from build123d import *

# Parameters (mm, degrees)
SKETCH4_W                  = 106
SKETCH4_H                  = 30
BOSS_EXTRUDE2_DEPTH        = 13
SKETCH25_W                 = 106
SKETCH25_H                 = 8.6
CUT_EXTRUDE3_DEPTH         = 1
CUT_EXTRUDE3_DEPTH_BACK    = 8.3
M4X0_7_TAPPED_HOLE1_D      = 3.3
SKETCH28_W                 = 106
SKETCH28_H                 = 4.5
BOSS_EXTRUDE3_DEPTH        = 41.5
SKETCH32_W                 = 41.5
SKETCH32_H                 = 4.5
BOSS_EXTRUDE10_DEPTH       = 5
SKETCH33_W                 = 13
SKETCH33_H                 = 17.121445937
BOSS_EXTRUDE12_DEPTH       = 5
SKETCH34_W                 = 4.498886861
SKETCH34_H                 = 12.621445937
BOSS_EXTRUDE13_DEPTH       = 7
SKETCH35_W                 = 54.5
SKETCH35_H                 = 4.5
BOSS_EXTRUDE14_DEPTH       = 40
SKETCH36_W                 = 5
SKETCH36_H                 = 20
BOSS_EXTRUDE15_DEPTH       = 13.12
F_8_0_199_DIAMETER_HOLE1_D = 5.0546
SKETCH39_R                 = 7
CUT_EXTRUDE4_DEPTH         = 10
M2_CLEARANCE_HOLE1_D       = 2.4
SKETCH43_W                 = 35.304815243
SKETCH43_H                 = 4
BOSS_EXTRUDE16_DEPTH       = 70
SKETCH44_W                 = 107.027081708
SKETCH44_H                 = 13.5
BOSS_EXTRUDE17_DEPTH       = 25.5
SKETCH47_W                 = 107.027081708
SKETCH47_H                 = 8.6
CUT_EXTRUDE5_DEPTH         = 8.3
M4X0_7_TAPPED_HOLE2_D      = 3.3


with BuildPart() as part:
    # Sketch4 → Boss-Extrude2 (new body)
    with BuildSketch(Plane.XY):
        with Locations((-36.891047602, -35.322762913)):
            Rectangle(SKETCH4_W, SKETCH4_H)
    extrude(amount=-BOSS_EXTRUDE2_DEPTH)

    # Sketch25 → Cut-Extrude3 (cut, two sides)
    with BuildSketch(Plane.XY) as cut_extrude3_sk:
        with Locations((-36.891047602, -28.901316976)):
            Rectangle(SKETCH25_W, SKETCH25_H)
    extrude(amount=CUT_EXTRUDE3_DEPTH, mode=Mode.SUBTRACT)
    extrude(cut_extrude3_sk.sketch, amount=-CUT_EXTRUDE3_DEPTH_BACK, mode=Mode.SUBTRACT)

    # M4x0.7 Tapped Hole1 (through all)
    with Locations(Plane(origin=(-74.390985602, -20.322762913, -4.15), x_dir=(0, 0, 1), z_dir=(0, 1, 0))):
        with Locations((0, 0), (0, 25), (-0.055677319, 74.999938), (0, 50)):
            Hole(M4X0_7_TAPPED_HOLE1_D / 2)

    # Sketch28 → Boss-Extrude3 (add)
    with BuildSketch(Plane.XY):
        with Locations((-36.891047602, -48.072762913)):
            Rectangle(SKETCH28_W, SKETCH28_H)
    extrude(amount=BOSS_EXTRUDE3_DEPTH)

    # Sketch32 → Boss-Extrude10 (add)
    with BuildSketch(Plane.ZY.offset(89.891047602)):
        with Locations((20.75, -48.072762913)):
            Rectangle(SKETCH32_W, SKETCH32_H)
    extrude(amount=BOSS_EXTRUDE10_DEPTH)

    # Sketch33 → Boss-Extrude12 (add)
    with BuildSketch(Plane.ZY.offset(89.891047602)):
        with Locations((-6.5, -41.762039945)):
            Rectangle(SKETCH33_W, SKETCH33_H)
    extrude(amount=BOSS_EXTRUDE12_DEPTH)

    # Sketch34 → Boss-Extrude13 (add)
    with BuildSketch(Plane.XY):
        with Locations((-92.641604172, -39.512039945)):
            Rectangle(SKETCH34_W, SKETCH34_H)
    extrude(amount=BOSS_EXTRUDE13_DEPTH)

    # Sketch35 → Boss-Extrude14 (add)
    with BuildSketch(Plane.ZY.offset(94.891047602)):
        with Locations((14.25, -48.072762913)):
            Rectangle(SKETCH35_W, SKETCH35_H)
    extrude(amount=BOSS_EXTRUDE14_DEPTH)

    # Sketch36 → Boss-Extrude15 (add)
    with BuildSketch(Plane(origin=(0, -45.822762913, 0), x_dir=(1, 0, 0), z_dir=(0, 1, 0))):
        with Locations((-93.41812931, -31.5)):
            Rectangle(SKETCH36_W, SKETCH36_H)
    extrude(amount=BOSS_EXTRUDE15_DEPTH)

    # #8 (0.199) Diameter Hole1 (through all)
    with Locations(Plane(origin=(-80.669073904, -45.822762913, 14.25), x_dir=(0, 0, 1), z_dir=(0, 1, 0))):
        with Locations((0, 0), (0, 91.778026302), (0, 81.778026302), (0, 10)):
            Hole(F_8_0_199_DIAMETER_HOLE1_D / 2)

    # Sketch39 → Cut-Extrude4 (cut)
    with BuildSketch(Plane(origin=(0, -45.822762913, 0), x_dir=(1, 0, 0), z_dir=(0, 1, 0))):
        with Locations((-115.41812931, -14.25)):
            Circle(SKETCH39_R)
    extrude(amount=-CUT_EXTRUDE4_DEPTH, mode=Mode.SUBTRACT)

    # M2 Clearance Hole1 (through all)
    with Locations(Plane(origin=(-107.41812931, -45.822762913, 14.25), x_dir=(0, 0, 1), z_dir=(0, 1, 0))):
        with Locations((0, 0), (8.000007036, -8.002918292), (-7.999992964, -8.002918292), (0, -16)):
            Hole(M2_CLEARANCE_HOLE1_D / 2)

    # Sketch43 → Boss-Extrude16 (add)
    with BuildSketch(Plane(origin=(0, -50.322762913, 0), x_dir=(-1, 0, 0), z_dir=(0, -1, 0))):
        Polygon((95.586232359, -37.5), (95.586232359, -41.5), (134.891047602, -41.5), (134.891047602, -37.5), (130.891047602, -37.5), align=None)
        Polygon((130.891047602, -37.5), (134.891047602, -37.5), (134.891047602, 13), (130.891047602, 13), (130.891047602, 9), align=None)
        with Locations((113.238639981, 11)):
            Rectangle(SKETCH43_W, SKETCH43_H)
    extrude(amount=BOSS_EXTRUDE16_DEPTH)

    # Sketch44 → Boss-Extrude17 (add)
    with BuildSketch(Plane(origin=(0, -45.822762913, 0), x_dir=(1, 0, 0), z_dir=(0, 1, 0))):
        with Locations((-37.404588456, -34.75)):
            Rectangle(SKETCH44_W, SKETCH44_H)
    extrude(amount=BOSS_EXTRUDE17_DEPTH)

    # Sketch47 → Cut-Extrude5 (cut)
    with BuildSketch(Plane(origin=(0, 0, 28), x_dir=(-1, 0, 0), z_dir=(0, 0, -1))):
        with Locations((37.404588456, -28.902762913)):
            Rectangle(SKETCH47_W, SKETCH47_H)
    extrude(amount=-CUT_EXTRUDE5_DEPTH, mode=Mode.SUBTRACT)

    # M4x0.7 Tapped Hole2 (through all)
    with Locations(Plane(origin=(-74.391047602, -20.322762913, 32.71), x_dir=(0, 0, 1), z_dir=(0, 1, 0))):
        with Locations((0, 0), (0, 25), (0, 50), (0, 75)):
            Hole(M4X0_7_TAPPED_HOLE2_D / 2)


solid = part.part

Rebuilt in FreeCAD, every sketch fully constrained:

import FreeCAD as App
import Part
import Sketcher

V = App.Vector


def add_polygon(sketch, points):
    """Adds a closed chain of lines whose ends are joined by coincident constraints."""
    first, n = sketch.GeometryCount, len(points)
    for a, b in zip(points, points[1:] + points[:1]):
        sketch.addGeometry(Part.LineSegment(App.Vector(*a, 0), App.Vector(*b, 0)), False)
    for i in range(n):
        sketch.addConstraint(Sketcher.Constraint("Coincident", first + i, 2, first + (i + 1) % n, 1))

doc = App.newDocument("Part")
body = doc.addObject("PartDesign::Body", "Body")

# Sketch on XY plane
sketch1 = body.newObject("Sketcher::SketchObject", "Sketch")
sketch1.AttachmentSupport = (doc.getObject("XY_Plane"), [""])
sketch1.MapMode = "FlatFace"
add_polygon(sketch1, [(-89.891048, -20.322763), (-89.891048, -50.322763), (16.108952, -50.322763), (16.108952, -20.322763)])  # lines 0-3
sketch1.addConstraint([
    Sketcher.Constraint("Vertical", 0),
    Sketcher.Constraint("Horizontal", 1),
    Sketcher.Constraint("Vertical", 2),
    Sketcher.Constraint("Horizontal", 3),
    Sketcher.Constraint("DistanceX", 1, 1, 1, 2, 106.0),
    Sketcher.Constraint("DistanceY", 0, 2, 0, 1, 30.0),
    Sketcher.Constraint("DistanceX", 0, 2, -1, 1, 89.891048),
    Sketcher.Constraint("DistanceY", 0, 2, -1, 1, 50.322763),
])
pad1 = body.newObject("PartDesign::Pad", "Pad")
pad1.Profile = sketch1
pad1.Length = 13
pad1.Reversed = True

# Sketch on XY plane
sketch2 = body.newObject("Sketcher::SketchObject", "Sketch001")
sketch2.AttachmentSupport = (doc.getObject("XY_Plane"), [""])
sketch2.MapMode = "FlatFace"
add_polygon(sketch2, [(-89.891048, -24.601317), (-89.891048, -33.201317), (16.108952, -33.201317), (16.108952, -24.601317)])  # lines 0-3
sketch2.addConstraint([
    Sketcher.Constraint("Vertical", 0),
    Sketcher.Constraint("Horizontal", 1),
    Sketcher.Constraint("Vertical", 2),
    Sketcher.Constraint("Horizontal", 3),
    Sketcher.Constraint("DistanceX", 1, 1, 1, 2, 106.0),
    Sketcher.Constraint("DistanceY", 0, 2, 0, 1, 8.6),
    Sketcher.Constraint("DistanceX", 0, 2, -1, 1, 89.891048),
    Sketcher.Constraint("DistanceY", 0, 2, -1, 1, 33.201317),
])
pocket1 = body.newObject("PartDesign::Pocket", "Pocket")
pocket1.Profile = sketch2
pocket1.Type = "TwoLengths"
pocket1.Length = 1
pocket1.Length2 = 8.3
pocket1.Reversed = True

# Sketch on XZ plane
sketch3 = body.newObject("Sketcher::SketchObject", "Sketch002")
sketch3.AttachmentSupport = (doc.getObject("XZ_Plane"), [""])
sketch3.MapMode = "FlatFace"
sketch3.AttachmentOffset = App.Placement(V(0, 0, 20.322763), App.Rotation())
sketch3.addGeometry([
    Part.Circle(V(-74.390986, -4.15, 0), V(0, 0, 1), 1.65),
    Part.Circle(V(-49.390986, -4.15, 0), V(0, 0, 1), 1.65),
    Part.Circle(V(0.608952, -4.205677, 0), V(0, 0, 1), 1.65),
    Part.Circle(V(-24.390986, -4.15, 0), V(0, 0, 1), 1.65),
], False)
sketch3.addConstraint([
    Sketcher.Constraint("Equal", 0, 1),
    Sketcher.Constraint("Equal", 1, 2),
    Sketcher.Constraint("Equal", 2, 3),
    Sketcher.Constraint("Horizontal", 0, 3, 1, 3),
    Sketcher.Constraint("Horizontal", 1, 3, 3, 3),
    Sketcher.Constraint("Diameter", 0, 3.3),
    Sketcher.Constraint("DistanceX", 0, 3, 1, 3, 25.0),
    Sketcher.Constraint("DistanceX", 1, 3, 3, 3, 25.0),
    Sketcher.Constraint("DistanceY", 0, 3, -1, 1, 4.15),
    Sketcher.Constraint("DistanceX", 0, 3, 2, 3, 74.999938),
    Sketcher.Constraint("DistanceX", 0, 3, -1, 1, 74.390986),
    Sketcher.Constraint("DistanceY", 2, 3, -1, 1, 4.205677),
])
doc.recompute()
hole = body.newObject("PartDesign::Hole", "Hole")
hole.Profile = sketch3
hole.ThreadType = "None"
hole.Diameter = 3.3
hole.DepthType = "ThroughAll"
hole.Reversed = True

# Sketch on XY plane
sketch4 = body.newObject("Sketcher::SketchObject", "Sketch003")
sketch4.AttachmentSupport = (doc.getObject("XY_Plane"), [""])
sketch4.MapMode = "FlatFace"
add_polygon(sketch4, [(-89.891048, -45.822763), (-89.891048, -50.322763), (16.108952, -50.322763), (16.108952, -45.822763)])  # lines 0-3
sketch4.addConstraint([
    Sketcher.Constraint("Vertical", 0),
    Sketcher.Constraint("Horizontal", 1),
    Sketcher.Constraint("Vertical", 2),
    Sketcher.Constraint("Horizontal", 3),
    Sketcher.Constraint("DistanceX", 1, 1, 1, 2, 106.0),
    Sketcher.Constraint("DistanceY", 0, 2, 0, 1, 4.5),
    Sketcher.Constraint("DistanceX", 0, 2, -1, 1, 89.891048),
    Sketcher.Constraint("DistanceY", 0, 2, -1, 1, 50.322763),
])
pad2 = body.newObject("PartDesign::Pad", "Pad001")
pad2.Profile = sketch4
pad2.Length = 41.5

# Sketch on YZ plane
sketch5 = body.newObject("Sketcher::SketchObject", "Sketch004")
sketch5.AttachmentSupport = (doc.getObject("YZ_Plane"), [""])
sketch5.MapMode = "FlatFace"
sketch5.AttachmentOffset = App.Placement(V(0, 0, -89.891048), App.Rotation())
add_polygon(sketch5, [(-45.822763, 0), (-50.322763, 0), (-50.322763, 41.5), (-45.822763, 41.5)])  # lines 0-3
sketch5.addConstraint([
    Sketcher.Constraint("Horizontal", 0),
    Sketcher.Constraint("Vertical", 1),
    Sketcher.Constraint("Horizontal", 2),
    Sketcher.Constraint("Vertical", 3),
    Sketcher.Constraint("PointOnObject", 0, 2, -1),
    Sketcher.Constraint("DistanceX", 0, 2, 0, 1, 4.5),
    Sketcher.Constraint("DistanceY", 1, 1, 1, 2, 41.5),
    Sketcher.Constraint("DistanceX", 0, 2, -1, 1, 50.322763),
])
pad3 = body.newObject("PartDesign::Pad", "Pad002")
pad3.Profile = sketch5
pad3.Length = 5
pad3.Reversed = True

# Sketch on YZ plane
sketch6 = body.newObject("Sketcher::SketchObject", "Sketch005")
sketch6.AttachmentSupport = (doc.getObject("YZ_Plane"), [""])
sketch6.MapMode = "FlatFace"
sketch6.AttachmentOffset = App.Placement(V(0, 0, -89.891048), App.Rotation())
add_polygon(sketch6, [(-33.201317, -13), (-50.322763, -13), (-50.322763, 0), (-33.201317, 0)])  # lines 0-3
sketch6.addConstraint([
    Sketcher.Constraint("Horizontal", 0),
    Sketcher.Constraint("Vertical", 1),
    Sketcher.Constraint("Horizontal", 2),
    Sketcher.Constraint("Vertical", 3),
    Sketcher.Constraint("PointOnObject", 1, 2, -1),
    Sketcher.Constraint("DistanceY", 1, 1, 1, 2, 13.0),
    Sketcher.Constraint("DistanceX", 0, 2, 0, 1, 17.121446),
    Sketcher.Constraint("DistanceX", 0, 2, -1, 1, 50.322763),
])
pad4 = body.newObject("PartDesign::Pad", "Pad003")
pad4.Profile = sketch6
pad4.Length = 5
pad4.Reversed = True

# Sketch on XY plane
sketch7 = body.newObject("Sketcher::SketchObject", "Sketch006")
sketch7.AttachmentSupport = (doc.getObject("XY_Plane"), [""])
sketch7.MapMode = "FlatFace"
add_polygon(sketch7, [(-94.891048, -33.201317), (-94.891048, -45.822763), (-90.392161, -45.822763), (-90.392161, -33.201317)])  # lines 0-3
sketch7.addConstraint([
    Sketcher.Constraint("Vertical", 0),
    Sketcher.Constraint("Horizontal", 1),
    Sketcher.Constraint("Vertical", 2),
    Sketcher.Constraint("Horizontal", 3),
    Sketcher.Constraint("DistanceX", 1, 1, 1, 2, 4.498887),
    Sketcher.Constraint("DistanceY", 0, 2, 0, 1, 12.621446),
    Sketcher.Constraint("DistanceX", 1, 2, -1, 1, 90.392161),
    Sketcher.Constraint("DistanceY", 0, 2, -1, 1, 45.822763),
])
pad5 = body.newObject("PartDesign::Pad", "Pad004")
pad5.Profile = sketch7
pad5.Length = 7

# Sketch on YZ plane
sketch8 = body.newObject("Sketcher::SketchObject", "Sketch007")
sketch8.AttachmentSupport = (doc.getObject("YZ_Plane"), [""])
sketch8.MapMode = "FlatFace"
sketch8.AttachmentOffset = App.Placement(V(0, 0, -94.891048), App.Rotation())
add_polygon(sketch8, [(-45.822763, -13), (-50.322763, -13), (-50.322763, 41.5), (-45.822763, 41.5)])  # lines 0-3
sketch8.addConstraint([
    Sketcher.Constraint("Horizontal", 0),
    Sketcher.Constraint("Vertical", 1),
    Sketcher.Constraint("Horizontal", 2),
    Sketcher.Constraint("Vertical", 3),
    Sketcher.Constraint("DistanceX", 0, 2, 0, 1, 4.5),
    Sketcher.Constraint("DistanceY", 1, 1, 1, 2, 54.5),
    Sketcher.Constraint("DistanceY", 0, 2, -1, 1, 13.0),
    Sketcher.Constraint("DistanceX", 0, 2, -1, 1, 50.322763),
])
pad6 = body.newObject("PartDesign::Pad", "Pad005")
pad6.Profile = sketch8
pad6.Length = 40
pad6.Reversed = True

# Sketch on XZ plane
sketch9 = body.newObject("Sketcher::SketchObject", "Sketch008")
sketch9.AttachmentSupport = (doc.getObject("XZ_Plane"), [""])
sketch9.MapMode = "FlatFace"
sketch9.AttachmentOffset = App.Placement(V(0, 0, 45.822763), App.Rotation())
add_polygon(sketch9, [(-95.918129, 21.5), (-95.918129, 41.5), (-90.918129, 41.5), (-90.918129, 21.5)])  # lines 0-3
sketch9.addConstraint([
    Sketcher.Constraint("Vertical", 0),
    Sketcher.Constraint("Horizontal", 1),
    Sketcher.Constraint("Vertical", 2),
    Sketcher.Constraint("Horizontal", 3),
    Sketcher.Constraint("DistanceX", 1, 1, 1, 2, 5.0),
    Sketcher.Constraint("DistanceY", 0, 1, 0, 2, 20.0),
    Sketcher.Constraint("DistanceY", -1, 1, 0, 2, 41.5),
    Sketcher.Constraint("DistanceX", 0, 2, -1, 1, 95.918129),
])
pad7 = body.newObject("PartDesign::Pad", "Pad006")
pad7.Profile = sketch9
pad7.Length = 13.12
pad7.Reversed = True

# Sketch on XZ plane
sketch10 = body.newObject("Sketcher::SketchObject", "Sketch009")
sketch10.AttachmentSupport = (doc.getObject("XZ_Plane"), [""])
sketch10.MapMode = "FlatFace"
sketch10.AttachmentOffset = App.Placement(V(0, 0, 45.822763), App.Rotation())
sketch10.addGeometry([
    Part.Circle(V(-80.669074, 14.25, 0), V(0, 0, 1), 2.5273),
    Part.Circle(V(11.108952, 14.25, 0), V(0, 0, 1), 2.5273),
    Part.Circle(V(1.108952, 14.25, 0), V(0, 0, 1), 2.5273),
    Part.Circle(V(-70.669074, 14.25, 0), V(0, 0, 1), 2.5273),
], False)
sketch10.addConstraint([
    Sketcher.Constraint("Equal", 0, 1),
    Sketcher.Constraint("Equal", 1, 2),
    Sketcher.Constraint("Equal", 2, 3),
    Sketcher.Constraint("Horizontal", 0, 3, 1, 3),
    Sketcher.Constraint("Horizontal", 1, 3, 2, 3),
    Sketcher.Constraint("Horizontal", 2, 3, 3, 3),
    Sketcher.Constraint("DistanceX", 2, 3, 1, 3, 10.0),
    Sketcher.Constraint("DistanceX", 0, 3, 3, 3, 10.0),
    Sketcher.Constraint("Diameter", 0, 5.0546),
    Sketcher.Constraint("DistanceY", -1, 1, 0, 3, 14.25),
    Sketcher.Constraint("DistanceX", 0, 3, -1, 1, 80.669074),
    Sketcher.Constraint("DistanceX", -1, 1, 1, 3, 11.108952),
])
doc.recompute()
hole2 = body.newObject("PartDesign::Hole", "Hole001")
hole2.Profile = sketch10
hole2.ThreadType = "None"
hole2.Diameter = 5.0546
hole2.DepthType = "ThroughAll"
hole2.Reversed = True

# Sketch on XZ plane
sketch11 = body.newObject("Sketcher::SketchObject", "Sketch010")
sketch11.AttachmentSupport = (doc.getObject("XZ_Plane"), [""])
sketch11.MapMode = "FlatFace"
sketch11.AttachmentOffset = App.Placement(V(0, 0, 45.822763), App.Rotation())
sketch11.addGeometry(Part.Circle(V(-115.418129, 14.25, 0), V(0, 0, 1), 7), False)
sketch11.addConstraint([
    Sketcher.Constraint("Diameter", 0, 14.0),
    Sketcher.Constraint("DistanceY", -1, 1, 0, 3, 14.25),
    Sketcher.Constraint("DistanceX", 0, 3, -1, 1, 115.418129),
])
pocket2 = body.newObject("PartDesign::Pocket", "Pocket001")
pocket2.Profile = sketch11
pocket2.Length = 10
pocket2.Reversed = True

# Sketch on XZ plane
sketch12 = body.newObject("Sketcher::SketchObject", "Sketch011")
sketch12.AttachmentSupport = (doc.getObject("XZ_Plane"), [""])
sketch12.MapMode = "FlatFace"
sketch12.AttachmentOffset = App.Placement(V(0, 0, 45.822763), App.Rotation())
sketch12.addGeometry([
    Part.Circle(V(-107.418129, 14.25, 0), V(0, 0, 1), 1.2),
    Part.Circle(V(-115.421048, 22.250007, 0), V(0, 0, 1), 1.2),
    Part.Circle(V(-115.421048, 6.250007, 0), V(0, 0, 1), 1.2),
    Part.Circle(V(-123.418129, 14.25, 0), V(0, 0, 1), 1.2),
], False)
sketch12.addConstraint([
    Sketcher.Constraint("Equal", 0, 1),
    Sketcher.Constraint("Equal", 1, 2),
    Sketcher.Constraint("Equal", 2, 3),
    Sketcher.Constraint("Horizontal", 0, 3, 3, 3),
    Sketcher.Constraint("Vertical", 1, 3, 2, 3),
    Sketcher.Constraint("Diameter", 0, 2.4),
    Sketcher.Constraint("DistanceY", 2, 3, 1, 3, 16.0),
    Sketcher.Constraint("DistanceX", 3, 3, 0, 3, 16.0),
    Sketcher.Constraint("DistanceY", -1, 1, 0, 3, 14.25),
    Sketcher.Constraint("DistanceX", 0, 3, -1, 1, 107.418129),
    Sketcher.Constraint("DistanceX", 1, 3, 0, 3, 8.002918),
    Sketcher.Constraint("DistanceY", -1, 1, 1, 3, 22.250007),
])
doc.recompute()
hole3 = body.newObject("PartDesign::Hole", "Hole002")
hole3.Profile = sketch12
hole3.ThreadType = "None"
hole3.Diameter = 2.4
hole3.DepthType = "ThroughAll"
hole3.Reversed = True

# Sketch on XZ plane
sketch13 = body.newObject("Sketcher::SketchObject", "Sketch012")
sketch13.AttachmentSupport = (doc.getObject("XZ_Plane"), [""])
sketch13.MapMode = "FlatFace"
sketch13.AttachmentOffset = App.Placement(V(0, 0, 50.322763), App.Rotation())
add_polygon(sketch13, [(-95.586232, 37.5), (-95.586232, 41.5), (-134.891048, 41.5), (-134.891048, -13), (-95.586232, -13), (-95.586232, -9), (-130.891048, -9), (-130.891048, 37.5)])  # lines 0-7
sketch13.addConstraint([
    Sketcher.Constraint("Vertical", 0),
    Sketcher.Constraint("Horizontal", 1),
    Sketcher.Constraint("Vertical", 2),
    Sketcher.Constraint("Horizontal", 3),
    Sketcher.Constraint("Vertical", 4),
    Sketcher.Constraint("Horizontal", 5),
    Sketcher.Constraint("Vertical", 6),
    Sketcher.Constraint("Horizontal", 7),
    Sketcher.Constraint("Vertical", 0, 2, 3, 2),
    Sketcher.Constraint("Equal", 0, 4),
    Sketcher.Constraint("DistanceY", 0, 1, 0, 2, 4.0),
    Sketcher.Constraint("DistanceY", 2, 2, 2, 1, 54.5),
    Sketcher.Constraint("DistanceY", 2, 2, -1, 1, 13.0),
    Sketcher.Constraint("DistanceX", 2, 2, 5, 2, 4.0),
    Sketcher.Constraint("DistanceX", 1, 2, 1, 1, 39.304815),
    Sketcher.Constraint("DistanceX", 0, 2, -1, 1, 95.586232),
])
pad8 = body.newObject("PartDesign::Pad", "Pad007")
pad8.Profile = sketch13
pad8.Length = 70

# Sketch on XZ plane
sketch14 = body.newObject("Sketcher::SketchObject", "Sketch013")
sketch14.AttachmentSupport = (doc.getObject("XZ_Plane"), [""])
sketch14.MapMode = "FlatFace"
sketch14.AttachmentOffset = App.Placement(V(0, 0, 45.822763), App.Rotation())
add_polygon(sketch14, [(-90.918129, 28), (-90.918129, 41.5), (16.108952, 41.5), (16.108952, 28)])  # lines 0-3
sketch14.addConstraint([
    Sketcher.Constraint("Vertical", 0),
    Sketcher.Constraint("Horizontal", 1),
    Sketcher.Constraint("Vertical", 2),
    Sketcher.Constraint("Horizontal", 3),
    Sketcher.Constraint("DistanceY", 0, 1, 0, 2, 13.5),
    Sketcher.Constraint("DistanceY", -1, 1, 2, 2, 28.0),
    Sketcher.Constraint("DistanceX", 1, 1, 1, 2, 107.027082),
    Sketcher.Constraint("DistanceX", 0, 2, -1, 1, 90.918129),
])
pad9 = body.newObject("PartDesign::Pad", "Pad008")
pad9.Profile = sketch14
pad9.Length = 25.5
pad9.Reversed = True

# Sketch on XY plane
sketch15 = body.newObject("Sketcher::SketchObject", "Sketch014")
sketch15.AttachmentSupport = (doc.getObject("XY_Plane"), [""])
sketch15.MapMode = "FlatFace"
sketch15.AttachmentOffset = App.Placement(V(0, 0, 28), App.Rotation())
add_polygon(sketch15, [(16.108952, -24.602763), (16.108952, -33.202763), (-90.918129, -33.202763), (-90.918129, -24.602763)])  # lines 0-3
sketch15.addConstraint([
    Sketcher.Constraint("Vertical", 0),
    Sketcher.Constraint("Horizontal", 1),
    Sketcher.Constraint("Vertical", 2),
    Sketcher.Constraint("Horizontal", 3),
    Sketcher.Constraint("DistanceY", 0, 2, 0, 1, 8.6),
    Sketcher.Constraint("DistanceX", 1, 2, 1, 1, 107.027082),
    Sketcher.Constraint("DistanceX", 1, 2, -1, 1, 90.918129),
    Sketcher.Constraint("DistanceY", 0, 2, -1, 1, 33.202763),
])
pocket3 = body.newObject("PartDesign::Pocket", "Pocket002")
pocket3.Profile = sketch15
pocket3.Length = 8.3
pocket3.Reversed = True

# Sketch on XZ plane
sketch16 = body.newObject("Sketcher::SketchObject", "Sketch015")
sketch16.AttachmentSupport = (doc.getObject("XZ_Plane"), [""])
sketch16.MapMode = "FlatFace"
sketch16.AttachmentOffset = App.Placement(V(0, 0, 20.322763), App.Rotation())
sketch16.addGeometry([
    Part.Circle(V(-74.391048, 32.71, 0), V(0, 0, 1), 1.65),
    Part.Circle(V(-49.391048, 32.71, 0), V(0, 0, 1), 1.65),
    Part.Circle(V(-24.391048, 32.71, 0), V(0, 0, 1), 1.65),
    Part.Circle(V(0.608952, 32.71, 0), V(0, 0, 1), 1.65),
], False)
sketch16.addConstraint([
    Sketcher.Constraint("Equal", 0, 1),
    Sketcher.Constraint("Equal", 1, 2),
    Sketcher.Constraint("Equal", 2, 3),
    Sketcher.Constraint("Horizontal", 0, 3, 1, 3),
    Sketcher.Constraint("Horizontal", 1, 3, 2, 3),
    Sketcher.Constraint("Horizontal", 2, 3, 3, 3),
    Sketcher.Constraint("Diameter", 0, 3.3),
    Sketcher.Constraint("DistanceX", 0, 3, 1, 3, 25.0),
    Sketcher.Constraint("DistanceX", 1, 3, 2, 3, 25.0),
    Sketcher.Constraint("DistanceX", 2, 3, 3, 3, 25.0),
    Sketcher.Constraint("DistanceY", -1, 1, 0, 3, 32.71),
    Sketcher.Constraint("DistanceX", 0, 3, -1, 1, 74.391048),
])
doc.recompute()
hole4 = body.newObject("PartDesign::Hole", "Hole003")
hole4.Profile = sketch16
hole4.ThreadType = "None"
hole4.Diameter = 3.3
hole4.DepthType = "ThroughAll"
hole4.Reversed = True

doc.recompute()
